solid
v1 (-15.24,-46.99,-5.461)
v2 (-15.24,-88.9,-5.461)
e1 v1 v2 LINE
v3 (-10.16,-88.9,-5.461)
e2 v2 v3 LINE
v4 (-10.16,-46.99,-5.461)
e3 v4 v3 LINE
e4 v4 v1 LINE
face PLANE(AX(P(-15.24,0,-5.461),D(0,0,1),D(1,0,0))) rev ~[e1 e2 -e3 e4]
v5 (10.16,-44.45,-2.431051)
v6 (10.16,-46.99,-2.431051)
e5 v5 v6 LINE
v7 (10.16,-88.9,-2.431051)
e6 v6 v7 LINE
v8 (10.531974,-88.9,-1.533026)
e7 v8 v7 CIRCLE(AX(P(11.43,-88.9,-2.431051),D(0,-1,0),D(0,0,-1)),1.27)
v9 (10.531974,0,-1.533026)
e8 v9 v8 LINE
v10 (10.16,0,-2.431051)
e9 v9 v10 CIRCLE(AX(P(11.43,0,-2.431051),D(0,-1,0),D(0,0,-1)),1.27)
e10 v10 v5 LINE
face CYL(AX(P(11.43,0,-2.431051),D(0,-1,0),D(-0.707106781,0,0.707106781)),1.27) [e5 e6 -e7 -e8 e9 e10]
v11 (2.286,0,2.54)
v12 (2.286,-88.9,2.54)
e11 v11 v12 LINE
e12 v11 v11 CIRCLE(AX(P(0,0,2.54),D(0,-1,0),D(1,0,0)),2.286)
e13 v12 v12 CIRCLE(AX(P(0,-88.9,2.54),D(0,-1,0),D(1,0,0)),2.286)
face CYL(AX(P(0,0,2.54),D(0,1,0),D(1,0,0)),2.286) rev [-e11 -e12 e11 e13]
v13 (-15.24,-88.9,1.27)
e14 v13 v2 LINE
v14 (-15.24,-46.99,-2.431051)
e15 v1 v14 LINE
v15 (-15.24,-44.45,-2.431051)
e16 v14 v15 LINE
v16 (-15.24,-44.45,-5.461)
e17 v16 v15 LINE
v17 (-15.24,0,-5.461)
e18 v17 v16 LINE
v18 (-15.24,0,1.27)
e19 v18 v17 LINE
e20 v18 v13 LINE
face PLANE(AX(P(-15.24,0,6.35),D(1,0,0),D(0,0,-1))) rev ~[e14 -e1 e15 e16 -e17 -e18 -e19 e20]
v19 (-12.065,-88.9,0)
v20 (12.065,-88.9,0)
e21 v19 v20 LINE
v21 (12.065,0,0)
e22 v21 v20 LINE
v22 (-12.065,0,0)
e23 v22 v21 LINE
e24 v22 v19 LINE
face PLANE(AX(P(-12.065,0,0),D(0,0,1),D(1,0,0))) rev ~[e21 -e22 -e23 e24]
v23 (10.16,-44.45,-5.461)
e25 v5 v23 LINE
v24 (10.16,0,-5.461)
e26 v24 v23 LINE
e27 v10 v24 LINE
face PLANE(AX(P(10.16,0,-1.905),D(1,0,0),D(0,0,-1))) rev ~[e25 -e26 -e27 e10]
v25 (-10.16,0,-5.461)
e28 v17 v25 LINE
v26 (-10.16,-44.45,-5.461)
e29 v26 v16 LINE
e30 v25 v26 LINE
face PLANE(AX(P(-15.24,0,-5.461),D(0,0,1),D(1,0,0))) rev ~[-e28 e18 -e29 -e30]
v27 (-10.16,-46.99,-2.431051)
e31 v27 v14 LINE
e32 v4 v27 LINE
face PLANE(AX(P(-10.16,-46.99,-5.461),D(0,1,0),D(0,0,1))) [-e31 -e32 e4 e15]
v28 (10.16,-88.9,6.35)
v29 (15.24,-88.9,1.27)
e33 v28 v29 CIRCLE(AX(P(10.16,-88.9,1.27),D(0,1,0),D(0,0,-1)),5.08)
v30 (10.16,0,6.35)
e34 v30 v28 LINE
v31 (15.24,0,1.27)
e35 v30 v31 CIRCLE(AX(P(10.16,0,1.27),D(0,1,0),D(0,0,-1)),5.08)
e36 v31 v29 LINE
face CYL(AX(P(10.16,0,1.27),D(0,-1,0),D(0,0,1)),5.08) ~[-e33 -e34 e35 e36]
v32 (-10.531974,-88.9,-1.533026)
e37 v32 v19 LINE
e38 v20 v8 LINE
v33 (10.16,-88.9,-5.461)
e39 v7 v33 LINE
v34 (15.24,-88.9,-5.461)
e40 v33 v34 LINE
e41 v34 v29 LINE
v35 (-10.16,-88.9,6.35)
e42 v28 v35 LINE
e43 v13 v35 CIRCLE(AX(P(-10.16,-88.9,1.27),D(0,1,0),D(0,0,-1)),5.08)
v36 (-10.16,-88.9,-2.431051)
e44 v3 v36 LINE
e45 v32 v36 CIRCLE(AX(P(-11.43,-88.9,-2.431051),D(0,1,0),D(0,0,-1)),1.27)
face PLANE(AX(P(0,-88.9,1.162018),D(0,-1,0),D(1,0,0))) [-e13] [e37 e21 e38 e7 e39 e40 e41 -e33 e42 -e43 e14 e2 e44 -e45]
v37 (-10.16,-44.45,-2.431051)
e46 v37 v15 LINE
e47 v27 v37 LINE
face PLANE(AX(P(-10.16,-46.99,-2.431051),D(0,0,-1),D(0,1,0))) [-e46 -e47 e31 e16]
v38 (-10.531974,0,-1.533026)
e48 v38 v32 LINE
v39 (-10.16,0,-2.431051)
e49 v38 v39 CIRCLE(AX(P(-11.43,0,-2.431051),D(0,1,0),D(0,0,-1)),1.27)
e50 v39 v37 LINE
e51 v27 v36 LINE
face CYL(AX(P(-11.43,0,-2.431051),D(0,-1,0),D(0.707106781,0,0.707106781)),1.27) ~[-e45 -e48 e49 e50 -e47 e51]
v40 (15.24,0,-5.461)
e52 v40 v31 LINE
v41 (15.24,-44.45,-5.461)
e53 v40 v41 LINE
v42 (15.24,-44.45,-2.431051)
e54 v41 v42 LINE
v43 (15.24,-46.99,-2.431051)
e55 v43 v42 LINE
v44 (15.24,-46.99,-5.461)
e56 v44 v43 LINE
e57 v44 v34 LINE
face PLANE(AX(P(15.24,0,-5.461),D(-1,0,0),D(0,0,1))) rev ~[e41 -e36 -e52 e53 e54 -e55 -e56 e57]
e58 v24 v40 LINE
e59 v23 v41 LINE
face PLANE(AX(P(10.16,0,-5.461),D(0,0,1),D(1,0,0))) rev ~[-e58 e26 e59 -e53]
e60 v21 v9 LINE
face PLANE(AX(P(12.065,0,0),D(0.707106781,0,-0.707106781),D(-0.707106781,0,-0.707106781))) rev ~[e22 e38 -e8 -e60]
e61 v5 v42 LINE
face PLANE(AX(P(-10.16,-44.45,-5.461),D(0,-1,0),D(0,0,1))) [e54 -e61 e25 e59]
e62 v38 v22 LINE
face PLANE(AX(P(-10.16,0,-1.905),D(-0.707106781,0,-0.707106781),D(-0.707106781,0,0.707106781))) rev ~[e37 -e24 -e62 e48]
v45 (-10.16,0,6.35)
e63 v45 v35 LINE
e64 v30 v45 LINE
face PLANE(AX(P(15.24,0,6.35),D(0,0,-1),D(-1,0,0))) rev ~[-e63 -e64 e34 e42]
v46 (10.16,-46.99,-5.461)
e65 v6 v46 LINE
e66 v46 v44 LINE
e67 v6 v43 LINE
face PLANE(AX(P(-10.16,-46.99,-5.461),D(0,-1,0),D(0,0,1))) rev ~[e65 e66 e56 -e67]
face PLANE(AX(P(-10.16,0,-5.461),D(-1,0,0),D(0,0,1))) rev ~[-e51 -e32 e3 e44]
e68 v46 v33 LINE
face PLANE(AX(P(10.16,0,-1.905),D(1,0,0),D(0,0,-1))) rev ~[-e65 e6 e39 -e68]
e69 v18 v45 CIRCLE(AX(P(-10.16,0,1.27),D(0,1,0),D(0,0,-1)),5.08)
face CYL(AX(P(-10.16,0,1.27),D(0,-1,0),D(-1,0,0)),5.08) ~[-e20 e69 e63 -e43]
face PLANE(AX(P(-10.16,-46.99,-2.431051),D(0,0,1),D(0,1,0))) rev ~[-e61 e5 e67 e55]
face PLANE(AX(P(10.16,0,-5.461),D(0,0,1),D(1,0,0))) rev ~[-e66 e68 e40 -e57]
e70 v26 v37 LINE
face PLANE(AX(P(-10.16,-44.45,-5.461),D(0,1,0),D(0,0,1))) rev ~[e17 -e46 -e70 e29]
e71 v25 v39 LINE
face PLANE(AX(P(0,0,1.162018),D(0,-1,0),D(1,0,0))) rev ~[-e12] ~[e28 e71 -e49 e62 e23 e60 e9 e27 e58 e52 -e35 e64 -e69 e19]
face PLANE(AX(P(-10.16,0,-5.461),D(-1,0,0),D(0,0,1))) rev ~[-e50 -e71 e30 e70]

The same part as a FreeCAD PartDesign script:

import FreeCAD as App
import Part
import Sketcher

V = App.Vector
Q = App.Units.Quantity


def edges_at(feature, points):
    """Names of the edges that pass closest to the given points."""
    edges = feature.Shape.Edges
    near = lambda p: min(range(len(edges)), key=lambda i: edges[i].distToShape(Part.Vertex(*p))[0])
    return sorted({f"Edge{near(p) + 1}" for p in points})


def add_polygon(sketch, points):
    """Adds a closed chain of lines whose ends are joined by coincident constraints."""
    first, n = sketch.GeometryCount, len(points)
    for a, b in zip(points, points[1:] + points[:1]):
        sketch.addGeometry(Part.LineSegment(App.Vector(*a, 0), App.Vector(*b, 0)), False)
    for i in range(n):
        sketch.addConstraint(Sketcher.Constraint("Coincident", first + i, 2, first + (i + 1) % n, 1))

doc = App.newDocument("Part")
body = doc.addObject("PartDesign::Body", "Body")

# Sketch on XZ plane
sketch1 = doc.addObject("Sketcher::SketchObject", "Sketch")
body.addObject(sketch1)
sketch1.AttachmentSupport = (doc.XZ_Plane, [""])
sketch1.MapMode = "FlatFace"
add_polygon(sketch1, [(-12.1, 0), (12.1, 0), (10.2, -1.9), (10.2, -5.5), (15.2, -5.5), (15.2, 6.3), (-15.2, 6.3), (-15.2, -5.5), (-10.2, -5.5), (-10.2, -1.9)])  # lines 0-9
sketch1.addGeometry(Part.Circle(V(0, 2.5, 0), V(0, 0, 1), 2.3), False)  # 10
sketch1.addConstraint(Sketcher.Constraint("Horizontal", 0))
sketch1.addConstraint(Sketcher.Constraint("Vertical", 2))
sketch1.addConstraint(Sketcher.Constraint("Horizontal", 3))
sketch1.addConstraint(Sketcher.Constraint("Vertical", 4))
sketch1.addConstraint(Sketcher.Constraint("Horizontal", 5))
sketch1.addConstraint(Sketcher.Constraint("Vertical", 6))
sketch1.addConstraint(Sketcher.Constraint("Horizontal", 7))
sketch1.addConstraint(Sketcher.Constraint("Vertical", 8))
sketch1.addConstraint(Sketcher.Constraint("Symmetric", 0, 2, 9, 2, -1, 1))
sketch1.addConstraint(Sketcher.Constraint("Symmetric", 3, 2, 6, 2, -2))
sketch1.addConstraint(Sketcher.Constraint("Symmetric", 1, 2, 8, 2, -2))
sketch1.addConstraint(Sketcher.Constraint("PointOnObject", 10, 3, -2))
sketch1.addConstraint(Sketcher.Constraint("Perpendicular", 1, 9))
sketch1.addConstraint(Sketcher.Constraint("Diameter", 10, Q("0.18 in")))
sketch1.addConstraint(Sketcher.Constraint("DistanceX", 3, 1, 3, 2, Q("0.2 in")))
sketch1.addConstraint(Sketcher.Constraint("DistanceX", 5, 2, 5, 1, Q("1.2 in")))
sketch1.addConstraint(Sketcher.Constraint("DistanceX", 0, 1, 0, 2, Q("0.95 in")))
sketch1.addConstraint(Sketcher.Constraint("DistanceY", 2, 2, 2, 1, Q("0.14 in")))
sketch1.addConstraint(Sketcher.Constraint("DistanceY", -1, 1, 10, 3, Q("0.1 in")))
sketch1.addConstraint(Sketcher.Constraint("DistanceY", 4, 1, 4, 2, Q("0.465 in")))
pad1 = doc.addObject("PartDesign::Pad", "Pad")
body.addObject(pad1)
pad1.Profile = sketch1
pad1.Length = Q("3.5 in")
doc.recompute()

fillet = doc.addObject("PartDesign::Fillet", "Fillet")
body.addObject(fillet)
fillet.Base = (pad1, edges_at(pad1, [(-10.16, -44.45, -1.905), (10.16, -44.45, -1.905)]))
fillet.Radius = Q("0.05 in")
doc.recompute()

fillet2 = doc.addObject("PartDesign::Fillet", "Fillet001")
body.addObject(fillet2)
fillet2.Base = (fillet, edges_at(fillet, [(-15.24, -44.45, 6.35), (15.24, -44.45, 6.35)]))
fillet2.Radius = Q("0.2 in")

# Sketch on YZ plane
sketch2 = doc.addObject("Sketcher::SketchObject", "Sketch001")
body.addObject(sketch2)
sketch2.AttachmentSupport = (doc.YZ_Plane, [""])
sketch2.MapMode = "FlatFace"
sketch2.AttachmentOffset = App.Placement(V(0, 0, -0.4 * 25.4), App.Rotation())
add_polygon(sketch2, [(-47, -2.4), (-47, -5.5), (-44.5, -5.5), (-44.5, -2.4)])  # lines 0-3
sketch2.addConstraint(Sketcher.Constraint("Vertical", 0))
sketch2.addConstraint(Sketcher.Constraint("Horizontal", 1))
sketch2.addConstraint(Sketcher.Constraint("Vertical", 2))
sketch2.addConstraint(Sketcher.Constraint("Horizontal", 3))
sketch2.addConstraint(Sketcher.Constraint("DistanceX", 1, 1, 1, 2, Q("0.1 in")))
sketch2.addConstraint(Sketcher.Constraint("DistanceX", 0, 2, -1, 1, Q("1.85 in")))
sketch2.addConstraint(Sketcher.Constraint("DistanceY", 0, 2, -1, 1, Q("0.215 in")))
sketch2.addConstraint(Sketcher.Constraint("DistanceY", 0, 2, 0, 1, Q("3.029949 mm")))
pocket1 = doc.addObject("PartDesign::Pocket", "Pocket")
body.addObject(pocket1)
pocket1.Profile = sketch2
pocket1.Type = "ThroughAll"
pocket1.Midplane = True

doc.recompute()
